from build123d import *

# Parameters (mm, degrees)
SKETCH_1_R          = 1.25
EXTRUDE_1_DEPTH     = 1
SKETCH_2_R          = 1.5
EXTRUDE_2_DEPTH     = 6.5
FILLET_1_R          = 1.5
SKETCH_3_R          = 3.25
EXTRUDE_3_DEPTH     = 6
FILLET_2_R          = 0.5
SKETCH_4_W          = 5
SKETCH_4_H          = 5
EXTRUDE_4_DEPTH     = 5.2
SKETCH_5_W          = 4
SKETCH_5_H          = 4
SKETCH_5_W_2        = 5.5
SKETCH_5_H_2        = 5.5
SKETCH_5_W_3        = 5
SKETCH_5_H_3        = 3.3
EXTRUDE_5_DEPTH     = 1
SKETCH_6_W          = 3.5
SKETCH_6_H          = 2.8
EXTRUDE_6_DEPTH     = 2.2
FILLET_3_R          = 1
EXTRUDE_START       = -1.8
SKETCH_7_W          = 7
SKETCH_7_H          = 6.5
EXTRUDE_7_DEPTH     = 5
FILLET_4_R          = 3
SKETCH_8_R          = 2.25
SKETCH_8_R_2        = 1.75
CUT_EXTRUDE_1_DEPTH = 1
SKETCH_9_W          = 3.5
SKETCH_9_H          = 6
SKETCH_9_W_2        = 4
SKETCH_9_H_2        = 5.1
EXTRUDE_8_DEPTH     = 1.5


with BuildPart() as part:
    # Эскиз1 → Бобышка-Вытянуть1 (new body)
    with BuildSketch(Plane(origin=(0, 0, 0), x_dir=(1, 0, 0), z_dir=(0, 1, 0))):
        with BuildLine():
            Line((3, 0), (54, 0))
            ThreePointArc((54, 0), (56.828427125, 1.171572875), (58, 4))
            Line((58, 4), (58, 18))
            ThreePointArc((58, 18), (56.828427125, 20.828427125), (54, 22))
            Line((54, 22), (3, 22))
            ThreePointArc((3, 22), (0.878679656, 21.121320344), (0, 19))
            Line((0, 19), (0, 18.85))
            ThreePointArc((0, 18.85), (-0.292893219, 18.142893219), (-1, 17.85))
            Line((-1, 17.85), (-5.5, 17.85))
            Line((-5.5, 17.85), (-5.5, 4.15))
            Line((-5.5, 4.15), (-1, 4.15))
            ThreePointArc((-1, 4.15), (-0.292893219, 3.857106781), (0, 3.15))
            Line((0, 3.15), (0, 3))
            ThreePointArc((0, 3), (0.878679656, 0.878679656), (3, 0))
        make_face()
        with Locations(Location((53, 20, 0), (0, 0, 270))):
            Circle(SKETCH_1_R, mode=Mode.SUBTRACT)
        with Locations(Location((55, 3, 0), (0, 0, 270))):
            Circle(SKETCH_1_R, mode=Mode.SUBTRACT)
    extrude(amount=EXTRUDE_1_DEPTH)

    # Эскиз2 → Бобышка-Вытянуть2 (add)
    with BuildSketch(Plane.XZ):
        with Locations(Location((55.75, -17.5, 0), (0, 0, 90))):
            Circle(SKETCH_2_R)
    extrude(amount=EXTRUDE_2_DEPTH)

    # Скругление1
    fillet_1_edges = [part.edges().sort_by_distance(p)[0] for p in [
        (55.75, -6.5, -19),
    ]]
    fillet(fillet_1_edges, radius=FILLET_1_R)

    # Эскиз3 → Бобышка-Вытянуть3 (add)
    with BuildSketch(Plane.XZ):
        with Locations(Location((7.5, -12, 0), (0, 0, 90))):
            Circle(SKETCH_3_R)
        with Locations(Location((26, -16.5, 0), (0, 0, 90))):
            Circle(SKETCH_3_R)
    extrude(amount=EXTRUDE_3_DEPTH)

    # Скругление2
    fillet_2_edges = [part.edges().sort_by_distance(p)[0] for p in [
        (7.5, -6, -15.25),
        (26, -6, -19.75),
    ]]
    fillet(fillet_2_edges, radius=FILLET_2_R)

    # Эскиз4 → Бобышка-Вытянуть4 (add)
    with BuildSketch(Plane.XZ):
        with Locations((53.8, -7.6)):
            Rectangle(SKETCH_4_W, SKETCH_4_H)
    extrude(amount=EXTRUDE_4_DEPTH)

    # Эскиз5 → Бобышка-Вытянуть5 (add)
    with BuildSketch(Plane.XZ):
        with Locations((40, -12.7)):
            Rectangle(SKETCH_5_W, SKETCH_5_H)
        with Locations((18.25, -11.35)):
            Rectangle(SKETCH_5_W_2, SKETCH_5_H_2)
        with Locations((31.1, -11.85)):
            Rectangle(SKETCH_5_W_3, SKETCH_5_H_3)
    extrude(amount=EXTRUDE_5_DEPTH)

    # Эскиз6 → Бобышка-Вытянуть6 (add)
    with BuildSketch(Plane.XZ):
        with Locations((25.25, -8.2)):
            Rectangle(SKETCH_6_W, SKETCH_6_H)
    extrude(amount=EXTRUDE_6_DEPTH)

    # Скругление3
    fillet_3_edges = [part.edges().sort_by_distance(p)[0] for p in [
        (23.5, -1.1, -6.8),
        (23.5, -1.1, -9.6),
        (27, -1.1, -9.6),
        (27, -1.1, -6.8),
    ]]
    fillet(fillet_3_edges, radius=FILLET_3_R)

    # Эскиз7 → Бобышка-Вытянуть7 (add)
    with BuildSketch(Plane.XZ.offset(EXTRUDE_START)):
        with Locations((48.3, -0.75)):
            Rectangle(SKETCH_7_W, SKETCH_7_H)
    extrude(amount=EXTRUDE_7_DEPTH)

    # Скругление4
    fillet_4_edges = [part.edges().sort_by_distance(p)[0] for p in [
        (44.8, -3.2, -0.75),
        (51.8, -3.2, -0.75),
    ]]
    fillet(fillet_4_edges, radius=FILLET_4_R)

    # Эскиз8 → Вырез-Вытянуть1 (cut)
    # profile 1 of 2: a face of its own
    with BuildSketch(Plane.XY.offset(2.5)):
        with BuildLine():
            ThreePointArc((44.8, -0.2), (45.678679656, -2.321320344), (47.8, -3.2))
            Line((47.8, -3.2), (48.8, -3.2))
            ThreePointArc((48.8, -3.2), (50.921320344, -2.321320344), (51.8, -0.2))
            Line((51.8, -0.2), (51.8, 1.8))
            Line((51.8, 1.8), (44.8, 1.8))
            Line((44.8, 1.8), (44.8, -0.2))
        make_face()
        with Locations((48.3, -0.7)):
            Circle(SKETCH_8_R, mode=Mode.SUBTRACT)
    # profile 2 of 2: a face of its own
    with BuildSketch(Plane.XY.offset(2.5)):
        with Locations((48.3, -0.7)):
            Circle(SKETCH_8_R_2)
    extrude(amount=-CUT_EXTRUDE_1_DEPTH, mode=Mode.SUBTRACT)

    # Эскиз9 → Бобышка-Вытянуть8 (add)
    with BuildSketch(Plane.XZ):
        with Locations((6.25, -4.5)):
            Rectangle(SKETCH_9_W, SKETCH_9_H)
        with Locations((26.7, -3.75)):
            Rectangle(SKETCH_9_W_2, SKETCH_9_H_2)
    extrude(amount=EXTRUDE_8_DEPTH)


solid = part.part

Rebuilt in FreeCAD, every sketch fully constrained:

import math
import FreeCAD as App
import Part
import Sketcher

V = App.Vector


def edges_at(feature, points):
    """Names of the edges that pass closest to the given points."""
    edges = feature.Shape.Edges
    near = lambda p: min(range(len(edges)), key=lambda i: edges[i].distToShape(Part.Vertex(*p))[0])
    return sorted({f"Edge{near(p) + 1}" for p in points})


def add_polygon(sketch, points):
    """Adds a closed chain of lines whose ends are joined by coincident constraints."""
    first, n = sketch.GeometryCount, len(points)
    for a, b in zip(points, points[1:] + points[:1]):
        sketch.addGeometry(Part.LineSegment(App.Vector(*a, 0), App.Vector(*b, 0)), False)
    for i in range(n):
        sketch.addConstraint(Sketcher.Constraint("Coincident", first + i, 2, first + (i + 1) % n, 1))

doc = App.newDocument("Part")
body = doc.addObject("PartDesign::Body", "Body")

sketch1 = body.newObject("Sketcher::SketchObject", "Sketch")
sketch1.AttachmentSupport = (doc.getObject("XZ_Plane"), [""])
sketch1.MapMode = "FlatFace"
sketch1.addGeometry([
    Part.LineSegment(V(3, 0, 0), V(54, 0, 0)),
    Part.ArcOfCircle(Part.Circle(V(54, -4, 0), V(0, 0, 1), 4), math.radians(0), math.radians(90)),
    Part.LineSegment(V(58, -4, 0), V(58, -18, 0)),
    Part.ArcOfCircle(Part.Circle(V(54, -18, 0), V(0, 0, 1), 4), math.radians(-90), math.radians(0)),
    Part.LineSegment(V(54, -22, 0), V(3, -22, 0)),
    Part.ArcOfCircle(Part.Circle(V(3, -19, 0), V(0, 0, 1), 3), math.radians(180), math.radians(270)),
    Part.LineSegment(V(0, -19, 0), V(0, -18.85, 0)),
    Part.ArcOfCircle(Part.Circle(V(-1, -18.85, 0), V(0, 0, 1), 1), math.radians(0), math.radians(90)),
    Part.LineSegment(V(-1, -17.85, 0), V(-5.5, -17.85, 0)),
    Part.LineSegment(V(-5.5, -17.85, 0), V(-5.5, -4.15, 0)),
    Part.LineSegment(V(-5.5, -4.15, 0), V(-1, -4.15, 0)),
    Part.ArcOfCircle(Part.Circle(V(-1, -3.15, 0), V(0, 0, 1), 1), math.radians(-90), math.radians(0)),
    Part.LineSegment(V(0, -3.15, 0), V(0, -3, 0)),
    Part.ArcOfCircle(Part.Circle(V(3, -3, 0), V(0, 0, 1), 3), math.radians(90), math.radians(180)),
    Part.Circle(V(55, -3, 0), V(0, 0, 1), 1.25),
    Part.Circle(V(53, -20, 0), V(0, 0, 1), 1.25),
], False)
sketch1.addConstraint([
    Sketcher.Constraint("Tangent", 0, 2, 1, 2),
    Sketcher.Constraint("Tangent", 1, 1, 2, 1),
    Sketcher.Constraint("Tangent", 2, 2, 3, 2),
    Sketcher.Constraint("Tangent", 3, 1, 4, 1),
    Sketcher.Constraint("Tangent", 4, 2, 5, 2),
    Sketcher.Constraint("Tangent", 5, 1, 6, 1),
    Sketcher.Constraint("Tangent", 6, 2, 7, 1),
    Sketcher.Constraint("Tangent", 7, 2, 8, 1),
    Sketcher.Constraint("Coincident", 8, 2, 9, 1),
    Sketcher.Constraint("Coincident", 9, 2, 10, 1),
    Sketcher.Constraint("Tangent", 10, 2, 11, 1),
    Sketcher.Constraint("Tangent", 11, 2, 12, 1),
    Sketcher.Constraint("Tangent", 12, 2, 13, 2),
    Sketcher.Constraint("Tangent", 13, 1, 0, 1),
    Sketcher.Constraint("Horizontal", 0),
    Sketcher.Constraint("Vertical", 2),
    Sketcher.Constraint("Horizontal", 4),
    Sketcher.Constraint("Vertical", 6),
    Sketcher.Constraint("Horizontal", 8),
    Sketcher.Constraint("Vertical", 9),
    Sketcher.Constraint("Horizontal", 10),
    Sketcher.Constraint("Vertical", 12),
    Sketcher.Constraint("Equal", 1, 3),
    Sketcher.Constraint("Equal", 7, 11),
    Sketcher.Constraint("Equal", 5, 13),
    Sketcher.Constraint("Equal", 14, 15),
    Sketcher.Constraint("PointOnObject", 0, 2, -1),
    Sketcher.Constraint("PointOnObject", 5, 1, -2),
    Sketcher.Constraint("PointOnObject", 11, 2, -2),
    Sketcher.Constraint("Horizontal", 13, 3, 14, 3),
    Sketcher.Constraint("Equal", 6, 12),
    Sketcher.Constraint("Radius", 1, 4.0),
    Sketcher.Constraint("Radius", 5, 3.0),
    Sketcher.Constraint("Radius", 7, 1.0),
    Sketcher.Constraint("Diameter", 14, 2.5),
    Sketcher.Constraint("DistanceX", 0, 1, 0, 2, 51.0),
    Sketcher.Constraint("DistanceY", 2, 2, 2, 1, 14.0),
    Sketcher.Constraint("DistanceX", 8, 2, 8, 1, 4.5),
    Sketcher.Constraint("DistanceY", 9, 1, 9, 2, 13.7),
    Sketcher.Constraint("DistanceX", -1, 1, 14, 3, 55.0),
    Sketcher.Constraint("DistanceX", -1, 1, 15, 3, 53.0),
    Sketcher.Constraint("DistanceY", 15, 3, -1, 1, 20.0),
])
pad1 = body.newObject("PartDesign::Pad", "Pad")
pad1.Profile = sketch1
pad1.Length = 1
pad1.Reversed = True

sketch2 = body.newObject("Sketcher::SketchObject", "Sketch001")
sketch2.AttachmentSupport = (doc.getObject("XZ_Plane"), [""])
sketch2.MapMode = "FlatFace"
sketch2.addGeometry(Part.Circle(V(55.8, -17.5, 0), V(0, 0, 1), 1.5), False)
sketch2.addConstraint([
    Sketcher.Constraint("Diameter", 0, 3.0),
    Sketcher.Constraint("DistanceY", 0, 3, -1, 1, 17.5),
    Sketcher.Constraint("DistanceX", -1, 1, 0, 3, 55.75),
])
pad2 = body.newObject("PartDesign::Pad", "Pad001")
pad2.Profile = sketch2
pad2.Length = 6.5
doc.recompute()

fillet = body.newObject("PartDesign::Fillet", "Fillet")
fillet.Base = (pad2, edges_at(pad2, [(55.75, -6.5, -19)]))
fillet.Radius = 1.5

sketch3 = body.newObject("Sketcher::SketchObject", "Sketch002")
sketch3.AttachmentSupport = (doc.getObject("XZ_Plane"), [""])
sketch3.MapMode = "FlatFace"
sketch3.addGeometry([
    Part.Circle(V(7.5, -12, 0), V(0, 0, 1), 3.2),
    Part.Circle(V(26, -16.5, 0), V(0, 0, 1), 3.2),
], False)
sketch3.addConstraint([
    Sketcher.Constraint("Equal", 0, 1),
    Sketcher.Constraint("Diameter", 0, 6.5),
    Sketcher.Constraint("DistanceY", 0, 3, -1, 1, 12.0),
    Sketcher.Constraint("DistanceX", -1, 1, 1, 3, 26.0),
    Sketcher.Constraint("DistanceX", -1, 1, 0, 3, 7.5),
    Sketcher.Constraint("DistanceY", 1, 3, -1, 1, 16.5),
])
pad3 = body.newObject("PartDesign::Pad", "Pad002")
pad3.Profile = sketch3
pad3.Length = 6
doc.recompute()

fillet2 = body.newObject("PartDesign::Fillet", "Fillet001")
fillet2.Base = (pad3, edges_at(pad3, [(7.5, -6, -15.25), (26, -6, -19.75)]))
fillet2.Radius = 0.5

sketch4 = body.newObject("Sketcher::SketchObject", "Sketch003")
sketch4.AttachmentSupport = (doc.getObject("XZ_Plane"), [""])
sketch4.MapMode = "FlatFace"
add_polygon(sketch4, [(51, -5), (51, -10), (56, -10), (56, -5)])
sketch4.addConstraint([
    Sketcher.Constraint("Vertical", 0),
    Sketcher.Constraint("Horizontal", 1),
    Sketcher.Constraint("Vertical", 2),
    Sketcher.Constraint("Horizontal", 3),
    Sketcher.Constraint("Equal", 3, 0),
    Sketcher.Constraint("DistanceX", 1, 1, 1, 2, 5.0),
    Sketcher.Constraint("DistanceX", -1, 1, 0, 2, 51.3),
    Sketcher.Constraint("DistanceY", 0, 2, -1, 1, 10.1),
])
pad4 = body.newObject("PartDesign::Pad", "Pad003")
pad4.Profile = sketch4
pad4.Length = 5.2

sketch5 = body.newObject("Sketcher::SketchObject", "Sketch004")
sketch5.AttachmentSupport = (doc.getObject("XZ_Plane"), [""])
sketch5.MapMode = "FlatFace"
add_polygon(sketch5, [(38, -10.7), (38, -14.7), (42, -14.7), (42, -10.7)])
add_polygon(sketch5, [(15.5, -8.6), (15.5, -14.1), (21, -14.1), (21, -8.6)])
add_polygon(sketch5, [(28.6, -10.2), (28.6, -13.5), (33.6, -13.5), (33.6, -10.2)])
sketch5.addConstraint([
    Sketcher.Constraint("Vertical", 0),
    Sketcher.Constraint("Horizontal", 1),
    Sketcher.Constraint("Vertical", 2),
    Sketcher.Constraint("Horizontal", 3),
    Sketcher.Constraint("Vertical", 4),
    Sketcher.Constraint("Horizontal", 5),
    Sketcher.Constraint("Vertical", 6),
    Sketcher.Constraint("Horizontal", 7),
    Sketcher.Constraint("Vertical", 8),
    Sketcher.Constraint("Horizontal", 9),
    Sketcher.Constraint("Vertical", 10),
    Sketcher.Constraint("Horizontal", 11),
    Sketcher.Constraint("Equal", 3, 0),
    Sketcher.Constraint("Equal", 7, 4),
    Sketcher.Constraint("DistanceX", 1, 1, 1, 2, 4.0),
    Sketcher.Constraint("DistanceX", 9, 1, 9, 2, 5.0),
    Sketcher.Constraint("DistanceX", 5, 1, 5, 2, 5.5),
    Sketcher.Constraint("DistanceY", 8, 2, 8, 1, 3.3),
    Sketcher.Constraint("DistanceX", -1, 1, 0, 2, 38.0),
    Sketcher.Constraint("DistanceX", -1, 1, 5, 2, 21.0),
    Sketcher.Constraint("DistanceY", 0, 2, -1, 1, 14.7),
    Sketcher.Constraint("DistanceY", 4, 2, -1, 1, 14.1),
    Sketcher.Constraint("DistanceX", -1, 1, 8, 2, 28.6),
    Sketcher.Constraint("DistanceY", 8, 2, -1, 1, 13.5),
])
pad5 = body.newObject("PartDesign::Pad", "Pad004")
pad5.Profile = sketch5
pad5.Length = 1

sketch6 = body.newObject("Sketcher::SketchObject", "Sketch005")
sketch6.AttachmentSupport = (doc.getObject("XZ_Plane"), [""])
sketch6.MapMode = "FlatFace"
add_polygon(sketch6, [(23.5, -6.8), (23.5, -9.6), (27, -9.6), (27, -6.8)])
sketch6.addConstraint([
    Sketcher.Constraint("Vertical", 0),
    Sketcher.Constraint("Horizontal", 1),
    Sketcher.Constraint("Vertical", 2),
    Sketcher.Constraint("Horizontal", 3),
    Sketcher.Constraint("DistanceX", 1, 1, 1, 2, 3.5),
    Sketcher.Constraint("DistanceY", 0, 2, 0, 1, 2.8),
    Sketcher.Constraint("DistanceX", -1, 1, 1, 2, 27.0),
    Sketcher.Constraint("DistanceY", 0, 2, -1, 1, 9.6),
])
pad6 = body.newObject("PartDesign::Pad", "Pad005")
pad6.Profile = sketch6
pad6.Length = 2.2
doc.recompute()

fillet3 = body.newObject("PartDesign::Fillet", "Fillet002")
fillet3.Base = (pad6, edges_at(pad6, [
    (23.5, -1.1, -6.8),
    (23.5, -1.1, -9.6),
    (27, -1.1, -9.6),
    (27, -1.1, -6.8),
]))
fillet3.Radius = 1

sketch7 = body.newObject("Sketcher::SketchObject", "Sketch006")
sketch7.AttachmentSupport = (doc.getObject("XZ_Plane"), [""])
sketch7.MapMode = "FlatFace"
sketch7.AttachmentOffset = App.Placement(V(0, 0, -1.8), App.Rotation())
add_polygon(sketch7, [(45, 2), (45, -4), (52, -4), (52, 2)])
sketch7.addConstraint([
    Sketcher.Constraint("Vertical", 0),
    Sketcher.Constraint("Horizontal", 1),
    Sketcher.Constraint("Vertical", 2),
    Sketcher.Constraint("Horizontal", 3),
    Sketcher.Constraint("DistanceX", 1, 1, 1, 2, 7.0),
    Sketcher.Constraint("DistanceY", 0, 2, 0, 1, 6.5),
    Sketcher.Constraint("DistanceY", 0, 2, -1, 1, 4.0),
    Sketcher.Constraint("DistanceX", -1, 1, 0, 2, 44.8),
])
pad7 = body.newObject("PartDesign::Pad", "Pad006")
pad7.Profile = sketch7
pad7.Length = 5
doc.recompute()

fillet4 = body.newObject("PartDesign::Fillet", "Fillet003")
fillet4.Base = (pad7, edges_at(pad7, [(44.8, -3.2, -0.75), (51.8, -3.2, -0.75)]))
fillet4.Radius = 3

sketch8 = body.newObject("Sketcher::SketchObject", "Sketch007")
sketch8.AttachmentSupport = (doc.getObject("XY_Plane"), [""])
sketch8.MapMode = "FlatFace"
sketch8.AttachmentOffset = App.Placement(V(0, 0, 2.5), App.Rotation())
sketch8.addGeometry([
    Part.ArcOfCircle(Part.Circle(V(47.8, -0.2, 0), V(0, 0, 1), 3), math.radians(180), math.radians(270)),
    Part.LineSegment(V(47.8, -3.2, 0), V(48.8, -3.2, 0)),
    Part.ArcOfCircle(Part.Circle(V(48.8, -0.2, 0), V(0, 0, 1), 3), math.radians(-90), math.radians(0)),
    Part.LineSegment(V(51.8, -0.2, 0), V(51.8, 1.8, 0)),
    Part.LineSegment(V(51.8, 1.8, 0), V(44.8, 1.8, 0)),
    Part.LineSegment(V(44.8, 1.8, 0), V(44.8, -0.2, 0)),
    Part.Circle(V(48.3, -0.7, 0), V(0, 0, 1), 2.2),
    Part.Circle(V(48.3, -0.7, 0), V(0, 0, 1), 1.8),
], False)
sketch8.addConstraint([
    Sketcher.Constraint("Tangent", 0, 2, 1, 1),
    Sketcher.Constraint("Tangent", 1, 2, 2, 1),
    Sketcher.Constraint("Tangent", 2, 2, 3, 1),
    Sketcher.Constraint("Coincident", 3, 2, 4, 1),
    Sketcher.Constraint("Coincident", 4, 2, 5, 1),
    Sketcher.Constraint("Tangent", 5, 2, 0, 1),
    Sketcher.Constraint("Horizontal", 1),
    Sketcher.Constraint("Vertical", 3),
    Sketcher.Constraint("Horizontal", 4),
    Sketcher.Constraint("Vertical", 5),
    Sketcher.Constraint("Coincident", 7, 3, 6, 3),
    Sketcher.Constraint("Equal", 0, 2),
    Sketcher.Constraint("Radius", 0, 3.0),
    Sketcher.Constraint("Diameter", 6, 4.5),
    Sketcher.Constraint("Diameter", 7, 3.5),
    Sketcher.Constraint("DistanceX", 1, 1, 1, 2, 1.0),
    Sketcher.Constraint("DistanceY", 3, 1, 3, 2, 2.0),
    Sketcher.Constraint("DistanceX", -1, 1, 0, 3, 47.8),
    Sketcher.Constraint("DistanceY", 0, 3, -1, 1, 0.2),
    Sketcher.Constraint("DistanceX", -1, 1, 6, 3, 48.3),
    Sketcher.Constraint("DistanceY", 6, 3, -1, 1, 0.7),
])
pocket1 = body.newObject("PartDesign::Pocket", "Pocket")
pocket1.Profile = sketch8
pocket1.Length = 1

sketch9 = body.newObject("Sketcher::SketchObject", "Sketch008")
sketch9.AttachmentSupport = (doc.getObject("XZ_Plane"), [""])
sketch9.MapMode = "FlatFace"
add_polygon(sketch9, [(4.5, -1.5), (4.5, -7.5), (8, -7.5), (8, -1.5)])
add_polygon(sketch9, [(24.7, -1.2), (24.7, -6.3), (28.7, -6.3), (28.7, -1.2)])
sketch9.addConstraint([
    Sketcher.Constraint("Vertical", 0),
    Sketcher.Constraint("Horizontal", 1),
    Sketcher.Constraint("Vertical", 2),
    Sketcher.Constraint("Horizontal", 3),
    Sketcher.Constraint("Vertical", 4),
    Sketcher.Constraint("Horizontal", 5),
    Sketcher.Constraint("Vertical", 6),
    Sketcher.Constraint("Horizontal", 7),
    Sketcher.Constraint("DistanceX", 5, 1, 5, 2, 4.0),
    Sketcher.Constraint("DistanceY", 0, 2, 0, 1, 6.0),
    Sketcher.Constraint("DistanceX", 1, 1, 1, 2, 3.5),
    Sketcher.Constraint("DistanceY", 4, 2, 4, 1, 5.1),
    Sketcher.Constraint("DistanceX", -1, 1, 1, 2, 8.0),
    Sketcher.Constraint("DistanceY", 0, 2, -1, 1, 7.5),
    Sketcher.Constraint("DistanceX", -1, 1, 4, 2, 24.7),
    Sketcher.Constraint("DistanceY", 4, 2, -1, 1, 6.3),
])
pad8 = body.newObject("PartDesign::Pad", "Pad007")
pad8.Profile = sketch9
pad8.Length = 1.5

doc.recompute()
